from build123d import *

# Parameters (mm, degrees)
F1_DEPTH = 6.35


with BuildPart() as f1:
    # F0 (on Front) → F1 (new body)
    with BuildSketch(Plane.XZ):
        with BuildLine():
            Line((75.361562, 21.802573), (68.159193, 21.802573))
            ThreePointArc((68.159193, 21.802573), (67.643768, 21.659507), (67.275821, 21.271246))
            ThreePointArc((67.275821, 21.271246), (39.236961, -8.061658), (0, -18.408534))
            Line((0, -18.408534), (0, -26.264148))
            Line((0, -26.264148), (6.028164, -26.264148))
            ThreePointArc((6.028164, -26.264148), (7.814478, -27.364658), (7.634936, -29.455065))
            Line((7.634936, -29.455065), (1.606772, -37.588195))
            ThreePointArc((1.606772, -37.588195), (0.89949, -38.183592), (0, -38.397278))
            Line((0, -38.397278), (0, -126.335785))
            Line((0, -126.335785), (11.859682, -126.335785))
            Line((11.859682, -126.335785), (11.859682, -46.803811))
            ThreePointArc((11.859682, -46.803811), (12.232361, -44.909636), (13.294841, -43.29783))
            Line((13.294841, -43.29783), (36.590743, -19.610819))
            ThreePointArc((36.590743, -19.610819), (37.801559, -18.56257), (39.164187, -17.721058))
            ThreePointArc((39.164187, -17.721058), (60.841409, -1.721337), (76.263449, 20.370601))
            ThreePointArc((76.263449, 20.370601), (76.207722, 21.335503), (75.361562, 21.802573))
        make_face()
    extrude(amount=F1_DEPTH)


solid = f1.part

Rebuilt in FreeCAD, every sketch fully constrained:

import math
import FreeCAD as App
import Part
import Sketcher
from FreeCAD import Vector
Q = App.Units.Quantity

doc = App.newDocument("Part")
body = doc.addObject("PartDesign::Body", "Body")

# Sketch on XZ plane
sketch1 = doc.addObject("Sketcher::SketchObject", "Sketch")
body.addObject(sketch1)
sketch1.AttachmentSupport = (doc.XZ_Plane, [""])
sketch1.MapMode = "FlatFace"
sketch1.addGeometry(Part.LineSegment(Vector(75.361562, 21.802573, 0), Vector(68.159193, 21.802573, 0)), False)
sketch1.addGeometry(Part.ArcOfCircle(Part.Circle(Vector(68.159195, 20.802569, 0), Vector(0, 0, 1), 1.000004), math.radians(90.000136), math.radians(152.051656)), False)
sketch1.addGeometry(Part.ArcOfCircle(Part.Circle(Vector(1.286722, 56.281781, 0), Vector(0, 0, 1), 74.701397), math.radians(-90.986961), math.radians(-27.948198)), False)
sketch1.addGeometry(Part.LineSegment(Vector(0, -18.408534, 0), Vector(0, -26.264148, 0)), False)
sketch1.addGeometry(Part.LineSegment(Vector(0, -26.264148, 0), Vector(6.028164, -26.264148, 0)), False)
sketch1.addGeometry(Part.ArcOfCircle(Part.Circle(Vector(6.028164, -28.264148, 0), Vector(0, 0, 1), 2), math.radians(-36.54533), math.radians(90.000001)), False)
sketch1.addGeometry(Part.LineSegment(Vector(7.634936, -29.455065, 0), Vector(1.606772, -37.588195, 0)), False)
sketch1.addGeometry(Part.ArcOfCircle(Part.Circle(Vector(0, -36.397278, 0), Vector(0, 0, 1), 2), math.radians(-90.000002), math.radians(-36.545318)), False)
sketch1.addGeometry(Part.LineSegment(Vector(0, -38.397278, 0), Vector(0, -126.335785, 0)), False)
sketch1.addGeometry(Part.LineSegment(Vector(0, -126.335785, 0), Vector(11.859682, -126.335785, 0)), False)
sketch1.addGeometry(Part.LineSegment(Vector(11.859682, -126.335785, 0), Vector(11.859682, -46.803811, 0)), False)
sketch1.addGeometry(Part.ArcOfCircle(Part.Circle(Vector(16.85968, -46.803811, 0), Vector(0, 0, 1), 4.999998), math.radians(135.476922), math.radians(180.000001)), False)
sketch1.addGeometry(Part.LineSegment(Vector(13.294841, -43.29783, 0), Vector(36.590743, -19.610819, 0)), False)
sketch1.addGeometry(Part.ArcOfCircle(Part.Circle(Vector(43.720427, -26.622783, 0), Vector(0, 0, 1), 10.000002), math.radians(117.105084), math.radians(135.476937)), False)
sketch1.addGeometry(Part.ArcOfCircle(Part.Circle(Vector(1.286718, 56.281784, 0), Vector(0, 0, 1), 83.133166), math.radians(-62.894906), math.radians(-25.59276)), False)
sketch1.addGeometry(Part.ArcOfCircle(Part.Circle(Vector(75.361563, 20.802574, 0), Vector(0, 0, 1), 0.999999), math.radians(-25.592834), math.radians(90.000059)), False)
sketch1.addConstraint(Sketcher.Constraint("Coincident", 0, 2, 1, 1))
sketch1.addConstraint(Sketcher.Constraint("Coincident", 1, 2, 2, 2))
sketch1.addConstraint(Sketcher.Constraint("Coincident", 2, 1, 3, 1))
sketch1.addConstraint(Sketcher.Constraint("Coincident", 3, 2, 4, 1))
sketch1.addConstraint(Sketcher.Constraint("Coincident", 4, 2, 5, 2))
sketch1.addConstraint(Sketcher.Constraint("Coincident", 5, 1, 6, 1))
sketch1.addConstraint(Sketcher.Constraint("Coincident", 6, 2, 7, 2))
sketch1.addConstraint(Sketcher.Constraint("Coincident", 7, 1, 8, 1))
sketch1.addConstraint(Sketcher.Constraint("Coincident", 8, 2, 9, 1))
sketch1.addConstraint(Sketcher.Constraint("Coincident", 9, 2, 10, 1))
sketch1.addConstraint(Sketcher.Constraint("Coincident", 10, 2, 11, 2))
sketch1.addConstraint(Sketcher.Constraint("Coincident", 11, 1, 12, 1))
sketch1.addConstraint(Sketcher.Constraint("Coincident", 12, 2, 13, 2))
sketch1.addConstraint(Sketcher.Constraint("Coincident", 13, 1, 14, 1))
sketch1.addConstraint(Sketcher.Constraint("Coincident", 14, 2, 15, 1))
sketch1.addConstraint(Sketcher.Constraint("Coincident", 15, 2, 0, 1))
sketch1.addConstraint(Sketcher.Constraint("Horizontal", 0))
sketch1.addConstraint(Sketcher.Constraint("Vertical", 3))
sketch1.addConstraint(Sketcher.Constraint("Horizontal", 4))
sketch1.addConstraint(Sketcher.Constraint("Vertical", 8))
sketch1.addConstraint(Sketcher.Constraint("Horizontal", 9))
sketch1.addConstraint(Sketcher.Constraint("Vertical", 10))
sketch1.addConstraint(Sketcher.Constraint("Coincident", 14, 3, 2, 3))
sketch1.addConstraint(Sketcher.Constraint("PointOnObject", 7, 3, -2))
sketch1.addConstraint(Sketcher.Constraint("PointOnObject", 2, 1, -2))
sketch1.addConstraint(Sketcher.Constraint("PointOnObject", 7, 1, -2))
sketch1.addConstraint(Sketcher.Constraint("Radius", 5, Q("2 mm")))
sketch1.addConstraint(Sketcher.Constraint("Radius", 7, Q("2 mm")))
sketch1.addConstraint(Sketcher.Constraint("Radius", 13, Q("10.000002 mm")))
sketch1.addConstraint(Sketcher.Constraint("Radius", 15, Q("0.999999 mm")))
sketch1.addConstraint(Sketcher.Constraint("Radius", 1, Q("1.000004 mm")))
sketch1.addConstraint(Sketcher.Constraint("Radius", 2, Q("74.701397 mm")))
sketch1.addConstraint(Sketcher.Constraint("Radius", 11, Q("4.999998 mm")))
sketch1.addConstraint(Sketcher.Constraint("Radius", 14, Q("83.133166 mm")))
sketch1.addConstraint(Sketcher.Constraint("DistanceX", 0, 2, 0, 1, Q("7.202369 mm")))
sketch1.addConstraint(Sketcher.Constraint("DistanceX", 9, 1, 9, 2, Q("11.859682 mm")))
sketch1.addConstraint(Sketcher.Constraint("DistanceY", -1, 1, 14, 2, Q("20.370601 mm")))
sketch1.addConstraint(Sketcher.Constraint("DistanceX", 5, 3, 15, 3, Q("69.333399 mm")))
sketch1.addConstraint(Sketcher.Constraint("DistanceX", 2, 3, 1, 2, Q("65.989099 mm")))
sketch1.addConstraint(Sketcher.Constraint("DistanceX", 11, 1, 12, 2, Q("23.295902 mm")))
sketch1.addConstraint(Sketcher.Constraint("DistanceX", 4, 1, 4, 2, Q("6.028164 mm")))
sketch1.addConstraint(Sketcher.Constraint("DistanceY", 3, 2, 3, 1, Q("7.855614 mm")))
sketch1.addConstraint(Sketcher.Constraint("DistanceY", 8, 2, 8, 1, Q("87.938507 mm")))
sketch1.addConstraint(Sketcher.Constraint("DistanceY", 10, 1, 10, 2, Q("79.531974 mm")))
sketch1.addConstraint(Sketcher.Constraint("DistanceY", -1, 1, 1, 3, Q("20.802569 mm")))
sketch1.addConstraint(Sketcher.Constraint("DistanceX", -1, 1, 2, 3, Q("1.286722 mm")))
sketch1.addConstraint(Sketcher.Constraint("DistanceY", -1, 1, 2, 3, Q("56.281781 mm")))
sketch1.addConstraint(Sketcher.Constraint("DistanceY", 7, 3, -1, 1, Q("36.397278 mm")))
sketch1.addConstraint(Sketcher.Constraint("DistanceY", 11, 3, -1, 1, Q("46.803811 mm")))
sketch1.addConstraint(Sketcher.Constraint("DistanceX", -1, 1, 11, 1, Q("13.294841 mm")))
sketch1.addConstraint(Sketcher.Constraint("DistanceY", 12, 2, -1, 1, Q("19.610819 mm")))
sketch1.addConstraint(Sketcher.Constraint("DistanceX", 0, 2, 15, 3, Q("7.20237 mm")))
sketch1.addConstraint(Sketcher.Constraint("DistanceX", 5, 3, 5, 1, Q("1.606772 mm")))
sketch1.addConstraint(Sketcher.Constraint("DistanceX", 7, 3, 6, 2, Q("1.606772 mm")))
sketch1.addConstraint(Sketcher.Constraint("DistanceY", 12, 2, 13, 1, Q("1.889761 mm")))
pad1 = doc.addObject("PartDesign::Pad", "Pad")
body.addObject(pad1)
pad1.Profile = sketch1
pad1.Length = 6.35

doc.recompute()
